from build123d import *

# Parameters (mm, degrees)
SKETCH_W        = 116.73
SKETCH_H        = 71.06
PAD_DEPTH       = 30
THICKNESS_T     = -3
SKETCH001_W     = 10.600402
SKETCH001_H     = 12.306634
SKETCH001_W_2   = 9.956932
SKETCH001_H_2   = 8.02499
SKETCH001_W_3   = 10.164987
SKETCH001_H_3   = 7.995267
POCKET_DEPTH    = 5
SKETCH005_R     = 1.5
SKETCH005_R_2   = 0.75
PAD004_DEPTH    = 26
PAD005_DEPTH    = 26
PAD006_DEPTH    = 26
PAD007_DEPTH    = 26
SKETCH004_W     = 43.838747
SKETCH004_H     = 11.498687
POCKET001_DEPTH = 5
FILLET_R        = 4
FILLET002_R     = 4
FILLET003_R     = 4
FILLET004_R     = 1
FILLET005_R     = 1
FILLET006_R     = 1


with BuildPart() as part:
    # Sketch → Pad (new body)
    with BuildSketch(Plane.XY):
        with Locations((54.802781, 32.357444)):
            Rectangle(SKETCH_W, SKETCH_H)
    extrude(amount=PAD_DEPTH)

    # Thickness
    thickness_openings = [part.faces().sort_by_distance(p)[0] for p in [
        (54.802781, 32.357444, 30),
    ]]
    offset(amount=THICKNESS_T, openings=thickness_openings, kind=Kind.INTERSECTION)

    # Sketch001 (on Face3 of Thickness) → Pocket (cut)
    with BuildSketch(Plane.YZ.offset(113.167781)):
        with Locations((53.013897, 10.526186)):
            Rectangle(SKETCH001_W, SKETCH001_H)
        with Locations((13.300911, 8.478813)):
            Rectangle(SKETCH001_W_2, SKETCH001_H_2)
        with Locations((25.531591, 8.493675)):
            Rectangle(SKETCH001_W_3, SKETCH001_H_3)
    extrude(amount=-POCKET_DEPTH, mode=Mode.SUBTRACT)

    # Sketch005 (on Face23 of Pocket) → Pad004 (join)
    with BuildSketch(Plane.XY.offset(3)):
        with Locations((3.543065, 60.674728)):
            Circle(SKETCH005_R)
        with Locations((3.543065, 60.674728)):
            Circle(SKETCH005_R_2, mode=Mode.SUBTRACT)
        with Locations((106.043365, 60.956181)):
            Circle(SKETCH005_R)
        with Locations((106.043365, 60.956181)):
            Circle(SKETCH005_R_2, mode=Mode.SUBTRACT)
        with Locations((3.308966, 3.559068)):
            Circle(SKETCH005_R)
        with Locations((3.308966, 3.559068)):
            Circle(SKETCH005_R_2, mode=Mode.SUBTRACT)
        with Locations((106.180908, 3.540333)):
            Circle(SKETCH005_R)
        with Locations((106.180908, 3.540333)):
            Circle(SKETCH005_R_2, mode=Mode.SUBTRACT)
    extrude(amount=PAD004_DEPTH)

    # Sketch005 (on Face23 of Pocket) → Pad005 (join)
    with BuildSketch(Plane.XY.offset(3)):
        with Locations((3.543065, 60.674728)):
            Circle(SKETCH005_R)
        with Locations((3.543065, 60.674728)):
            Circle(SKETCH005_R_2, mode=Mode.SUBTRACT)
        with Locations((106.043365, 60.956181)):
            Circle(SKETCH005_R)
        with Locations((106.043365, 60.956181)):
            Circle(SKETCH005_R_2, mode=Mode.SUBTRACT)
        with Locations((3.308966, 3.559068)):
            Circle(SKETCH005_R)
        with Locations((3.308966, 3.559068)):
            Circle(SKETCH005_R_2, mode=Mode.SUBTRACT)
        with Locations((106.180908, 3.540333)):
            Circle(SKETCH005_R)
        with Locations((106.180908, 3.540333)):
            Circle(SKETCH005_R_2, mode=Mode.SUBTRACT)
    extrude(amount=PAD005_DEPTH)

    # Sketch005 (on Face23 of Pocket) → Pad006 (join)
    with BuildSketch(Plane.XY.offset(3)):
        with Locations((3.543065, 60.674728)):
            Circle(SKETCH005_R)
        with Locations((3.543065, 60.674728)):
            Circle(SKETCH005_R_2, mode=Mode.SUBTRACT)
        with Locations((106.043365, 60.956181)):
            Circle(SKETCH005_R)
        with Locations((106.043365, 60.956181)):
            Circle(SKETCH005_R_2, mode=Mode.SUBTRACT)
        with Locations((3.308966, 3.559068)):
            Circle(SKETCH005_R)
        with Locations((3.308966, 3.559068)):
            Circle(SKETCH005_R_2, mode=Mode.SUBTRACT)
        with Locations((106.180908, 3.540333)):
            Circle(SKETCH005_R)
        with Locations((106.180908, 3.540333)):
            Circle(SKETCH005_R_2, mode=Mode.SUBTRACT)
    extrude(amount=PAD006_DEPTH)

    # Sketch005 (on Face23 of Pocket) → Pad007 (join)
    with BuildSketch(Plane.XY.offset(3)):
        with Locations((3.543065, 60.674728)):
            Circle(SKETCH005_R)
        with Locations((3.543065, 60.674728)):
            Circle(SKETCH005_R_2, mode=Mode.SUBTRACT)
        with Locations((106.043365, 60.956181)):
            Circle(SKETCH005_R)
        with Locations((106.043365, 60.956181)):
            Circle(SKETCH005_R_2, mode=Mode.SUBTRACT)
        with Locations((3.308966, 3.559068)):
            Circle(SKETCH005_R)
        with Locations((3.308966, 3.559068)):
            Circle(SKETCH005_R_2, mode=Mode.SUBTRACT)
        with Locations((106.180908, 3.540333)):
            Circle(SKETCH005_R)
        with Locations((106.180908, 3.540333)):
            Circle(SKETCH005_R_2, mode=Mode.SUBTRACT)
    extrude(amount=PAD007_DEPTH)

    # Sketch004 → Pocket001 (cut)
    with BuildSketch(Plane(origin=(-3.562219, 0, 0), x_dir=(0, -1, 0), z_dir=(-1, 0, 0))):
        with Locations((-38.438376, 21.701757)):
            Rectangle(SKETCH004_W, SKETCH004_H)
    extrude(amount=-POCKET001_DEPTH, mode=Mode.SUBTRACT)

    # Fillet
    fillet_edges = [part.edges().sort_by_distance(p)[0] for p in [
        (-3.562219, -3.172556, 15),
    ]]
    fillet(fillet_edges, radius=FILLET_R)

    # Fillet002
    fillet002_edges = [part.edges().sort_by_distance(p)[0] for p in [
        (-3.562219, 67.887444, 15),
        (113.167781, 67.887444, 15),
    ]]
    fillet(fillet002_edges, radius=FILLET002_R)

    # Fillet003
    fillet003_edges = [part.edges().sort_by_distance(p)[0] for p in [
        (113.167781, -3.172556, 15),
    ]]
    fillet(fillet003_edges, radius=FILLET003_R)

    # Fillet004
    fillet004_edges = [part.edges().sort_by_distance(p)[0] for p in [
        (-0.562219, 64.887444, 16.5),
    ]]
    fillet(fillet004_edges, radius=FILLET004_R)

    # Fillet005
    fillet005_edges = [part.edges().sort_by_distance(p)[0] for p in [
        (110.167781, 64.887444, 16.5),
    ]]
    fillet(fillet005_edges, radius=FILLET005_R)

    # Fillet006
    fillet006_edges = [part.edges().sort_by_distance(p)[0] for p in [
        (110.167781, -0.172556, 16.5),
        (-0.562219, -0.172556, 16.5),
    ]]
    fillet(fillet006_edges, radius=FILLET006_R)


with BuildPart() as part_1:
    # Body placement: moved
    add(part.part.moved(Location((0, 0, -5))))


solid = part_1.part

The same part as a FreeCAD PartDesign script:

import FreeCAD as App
import Part
import Sketcher
Q = App.Units.Quantity


def edges_at(feature, points):
    """Names of the edges that pass closest to the given points."""
    edges = feature.Shape.Edges
    near = lambda p: min(range(len(edges)), key=lambda i: edges[i].distToShape(Part.Vertex(*p))[0])
    return sorted({f"Edge{near(p) + 1}" for p in points})


def faces_at(feature, points):
    """Names of the faces that lie closest to the given points."""
    faces = feature.Shape.Faces
    near = lambda p: min(range(len(faces)), key=lambda i: faces[i].distToShape(Part.Vertex(*p))[0])
    return sorted({f"Face{near(p) + 1}" for p in points})

doc = App.newDocument("Part")
body = doc.addObject("PartDesign::Body", "Body")

sketch1 = body.newObject("Sketcher::SketchObject", "Sketch")
sketch1.AttachmentSupport = (doc.getObject("XY_Plane"), [""])
sketch1.MapMode = "FlatFace"
sketch1.addGeometry([
    Part.LineSegment(App.Vector(-3.562219, 67.887444, 0), App.Vector(-3.562219, -3.172556, 0)),
    Part.LineSegment(App.Vector(-3.562219, -3.172556, 0), App.Vector(113.167781, -3.172556, 0)),
    Part.LineSegment(App.Vector(113.167781, -3.172556, 0), App.Vector(113.167781, 67.887444, 0)),
    Part.LineSegment(App.Vector(113.167781, 67.887444, 0), App.Vector(-3.562219, 67.887444, 0)),
], False)
sketch1.addConstraint([
    Sketcher.Constraint("Coincident", 0, 2, 1, 1),
    Sketcher.Constraint("Coincident", 1, 2, 2, 1),
    Sketcher.Constraint("Coincident", 2, 2, 3, 1),
    Sketcher.Constraint("Coincident", 3, 2, 0, 1),
    Sketcher.Constraint("Vertical", 0),
    Sketcher.Constraint("Horizontal", 1),
    Sketcher.Constraint("Vertical", 2),
    Sketcher.Constraint("Horizontal", 3),
    Sketcher.Constraint("DistanceX", 1, 1, 1, 2, Q("116.73 mm")),
    Sketcher.Constraint("DistanceY", 0, 2, 0, 1, Q("71.06 mm")),
    Sketcher.Constraint("DistanceX", 0, 2, -1, 1, Q("3.562219 mm")),
    Sketcher.Constraint("DistanceY", 0, 2, -1, 1, Q("3.172556 mm")),
])
pad1 = body.newObject("PartDesign::Pad", "Pad")
pad1.Profile = sketch1
pad1.Length = 30
doc.recompute()

thickness = body.newObject("PartDesign::Thickness", "Thickness")
thickness.Base = (pad1, faces_at(pad1, [(54.803, 32.357, 30)]))
thickness.Value = 3
thickness.Reversed = True
thickness.Join = "Intersection"

sketch2 = body.newObject("Sketcher::SketchObject", "Sketch001")
sketch2.AttachmentSupport = (doc.getObject("YZ_Plane"), [""])
sketch2.MapMode = "FlatFace"
sketch2.AttachmentOffset = App.Placement(App.Vector(0, 0, 113.167781), App.Rotation())
sketch2.addGeometry([
    Part.LineSegment(App.Vector(47.713696, 16.679503, 0), App.Vector(47.713696, 4.372869, 0)),
    Part.LineSegment(App.Vector(47.713696, 4.372869, 0), App.Vector(58.314098, 4.372869, 0)),
    Part.LineSegment(App.Vector(58.314098, 4.372869, 0), App.Vector(58.314098, 16.679503, 0)),
    Part.LineSegment(App.Vector(58.314098, 16.679503, 0), App.Vector(47.713696, 16.679503, 0)),
    Part.LineSegment(App.Vector(8.322445, 12.491308, 0), App.Vector(8.322445, 4.466318, 0)),
    Part.LineSegment(App.Vector(8.322445, 4.466318, 0), App.Vector(18.279377, 4.466318, 0)),
    Part.LineSegment(App.Vector(18.279377, 4.466318, 0), App.Vector(18.279377, 12.491308, 0)),
    Part.LineSegment(App.Vector(18.279377, 12.491308, 0), App.Vector(8.322445, 12.491308, 0)),
    Part.LineSegment(App.Vector(20.449098, 12.491309, 0), App.Vector(20.449098, 4.496041, 0)),
    Part.LineSegment(App.Vector(20.449098, 4.496041, 0), App.Vector(30.614085, 4.496041, 0)),
    Part.LineSegment(App.Vector(30.614085, 4.496041, 0), App.Vector(30.614085, 12.491309, 0)),
    Part.LineSegment(App.Vector(30.614085, 12.491309, 0), App.Vector(20.449098, 12.491309, 0)),
], False)
sketch2.addConstraint([
    Sketcher.Constraint("Coincident", 0, 2, 1, 1),
    Sketcher.Constraint("Coincident", 1, 2, 2, 1),
    Sketcher.Constraint("Coincident", 2, 2, 3, 1),
    Sketcher.Constraint("Coincident", 3, 2, 0, 1),
    Sketcher.Constraint("Coincident", 4, 2, 5, 1),
    Sketcher.Constraint("Coincident", 5, 2, 6, 1),
    Sketcher.Constraint("Coincident", 6, 2, 7, 1),
    Sketcher.Constraint("Coincident", 7, 2, 4, 1),
    Sketcher.Constraint("Coincident", 8, 2, 9, 1),
    Sketcher.Constraint("Coincident", 9, 2, 10, 1),
    Sketcher.Constraint("Coincident", 10, 2, 11, 1),
    Sketcher.Constraint("Coincident", 11, 2, 8, 1),
    Sketcher.Constraint("Vertical", 0),
    Sketcher.Constraint("Horizontal", 1),
    Sketcher.Constraint("Vertical", 2),
    Sketcher.Constraint("Horizontal", 3),
    Sketcher.Constraint("Vertical", 4),
    Sketcher.Constraint("Horizontal", 5),
    Sketcher.Constraint("Vertical", 6),
    Sketcher.Constraint("Horizontal", 7),
    Sketcher.Constraint("Vertical", 8),
    Sketcher.Constraint("Horizontal", 9),
    Sketcher.Constraint("Vertical", 10),
    Sketcher.Constraint("Horizontal", 11),
    Sketcher.Constraint("Horizontal", 7, 2, 10, 2),
    Sketcher.Constraint("DistanceY", 4, 2, 4, 1, Q("8.02499 mm")),
    Sketcher.Constraint("DistanceX", 8, 2, 0, 2, Q("27.264598 mm")),
    Sketcher.Constraint("DistanceX", 1, 1, 1, 2, Q("10.600402 mm")),
    Sketcher.Constraint("DistanceX", 5, 1, 5, 2, Q("9.956932 mm")),
    Sketcher.Constraint("DistanceX", 9, 1, 9, 2, Q("10.164987 mm")),
    Sketcher.Constraint("DistanceY", 0, 2, 0, 1, Q("12.306634 mm")),
    Sketcher.Constraint("DistanceY", 8, 2, 8, 1, Q("7.995267 mm")),
    Sketcher.Constraint("DistanceY", -1, 1, 0, 2, Q("4.372869 mm")),
    Sketcher.Constraint("DistanceY", -1, 1, 4, 2, Q("4.466318 mm")),
    Sketcher.Constraint("DistanceX", 4, 2, 0, 2, Q("39.391251 mm")),
    Sketcher.Constraint("DistanceX", -1, 1, 0, 2, Q("47.713696 mm")),
])
pocket1 = body.newObject("PartDesign::Pocket", "Pocket")
pocket1.Profile = sketch2
pocket1.Length = 5

sketch3 = body.newObject("Sketcher::SketchObject", "Sketch002")
sketch3.AttachmentSupport = (doc.getObject("XY_Plane"), [""])
sketch3.MapMode = "FlatFace"
sketch3.AttachmentOffset = App.Placement(App.Vector(0, 0, 3), App.Rotation())
sketch3.addGeometry([
    Part.Circle(App.Vector(3.543065, 60.674728, 0), App.Vector(0, 0, 1), 1.5),
    Part.Circle(App.Vector(3.543065, 60.674728, 0), App.Vector(0, 0, 1), 0.75),
    Part.Circle(App.Vector(106.043365, 60.956181, 0), App.Vector(0, 0, 1), 1.5),
    Part.Circle(App.Vector(106.043365, 60.956181, 0), App.Vector(0, 0, 1), 0.75),
    Part.Circle(App.Vector(3.308966, 3.559068, 0), App.Vector(0, 0, 1), 1.5),
    Part.Circle(App.Vector(3.308966, 3.559068, 0), App.Vector(0, 0, 1), 0.75),
    Part.Circle(App.Vector(106.180908, 3.540333, 0), App.Vector(0, 0, 1), 1.5),
    Part.Circle(App.Vector(106.180908, 3.540333, 0), App.Vector(0, 0, 1), 0.75),
], False)
sketch3.addConstraint([
    Sketcher.Constraint("Coincident", 1, 3, 0, 3),
    Sketcher.Constraint("Coincident", 3, 3, 2, 3),
    Sketcher.Constraint("Coincident", 5, 3, 4, 3),
    Sketcher.Constraint("Coincident", 7, 3, 6, 3),
    Sketcher.Constraint("Equal", 0, 2),
    Sketcher.Constraint("Equal", 1, 3),
    Sketcher.Constraint("Equal", 2, 4),
    Sketcher.Constraint("Equal", 3, 5),
    Sketcher.Constraint("Equal", 4, 6),
    Sketcher.Constraint("Equal", 5, 7),
    Sketcher.Constraint("Diameter", 0, Q("3 mm")),
    Sketcher.Constraint("Diameter", 1, Q("1.5 mm")),
    Sketcher.Constraint("DistanceX", 0, 3, 2, 3, Q("102.5003 mm")),
    Sketcher.Constraint("DistanceX", 4, 3, 0, 3, Q("0.234099 mm")),
    Sketcher.Constraint("DistanceY", -1, 1, 0, 3, Q("60.674728 mm")),
    Sketcher.Constraint("DistanceY", -1, 1, 2, 3, Q("60.956181 mm")),
    Sketcher.Constraint("DistanceX", -1, 1, 6, 3, Q("106.180908 mm")),
    Sketcher.Constraint("DistanceY", 4, 3, 0, 3, Q("57.11566 mm")),
    Sketcher.Constraint("DistanceY", 6, 3, 2, 3, Q("57.415848 mm")),
    Sketcher.Constraint("DistanceX", -1, 1, 0, 3, Q("3.543065 mm")),
])
pad2 = body.newObject("PartDesign::Pad", "Pad001")
pad2.Profile = sketch3
pad2.Length = 26

sketch4 = body.newObject("Sketcher::SketchObject", "Sketch003")
sketch4.AttachmentSupport = (doc.getObject("XY_Plane"), [""])
sketch4.MapMode = "FlatFace"
sketch4.AttachmentOffset = App.Placement(App.Vector(0, 0, 3), App.Rotation())
sketch4.addGeometry([
    Part.Circle(App.Vector(3.543065, 60.674728, 0), App.Vector(0, 0, 1), 1.5),
    Part.Circle(App.Vector(3.543065, 60.674728, 0), App.Vector(0, 0, 1), 0.75),
    Part.Circle(App.Vector(106.043365, 60.956181, 0), App.Vector(0, 0, 1), 1.5),
    Part.Circle(App.Vector(106.043365, 60.956181, 0), App.Vector(0, 0, 1), 0.75),
    Part.Circle(App.Vector(3.308966, 3.559068, 0), App.Vector(0, 0, 1), 1.5),
    Part.Circle(App.Vector(3.308966, 3.559068, 0), App.Vector(0, 0, 1), 0.75),
    Part.Circle(App.Vector(106.180908, 3.540333, 0), App.Vector(0, 0, 1), 1.5),
    Part.Circle(App.Vector(106.180908, 3.540333, 0), App.Vector(0, 0, 1), 0.75),
], False)
sketch4.addConstraint([
    Sketcher.Constraint("Coincident", 1, 3, 0, 3),
    Sketcher.Constraint("Coincident", 3, 3, 2, 3),
    Sketcher.Constraint("Coincident", 5, 3, 4, 3),
    Sketcher.Constraint("Coincident", 7, 3, 6, 3),
    Sketcher.Constraint("Equal", 0, 2),
    Sketcher.Constraint("Equal", 1, 3),
    Sketcher.Constraint("Equal", 2, 4),
    Sketcher.Constraint("Equal", 3, 5),
    Sketcher.Constraint("Equal", 4, 6),
    Sketcher.Constraint("Equal", 5, 7),
    Sketcher.Constraint("Diameter", 0, Q("3 mm")),
    Sketcher.Constraint("Diameter", 1, Q("1.5 mm")),
    Sketcher.Constraint("DistanceX", 0, 3, 2, 3, Q("102.5003 mm")),
    Sketcher.Constraint("DistanceX", 4, 3, 0, 3, Q("0.234099 mm")),
    Sketcher.Constraint("DistanceY", -1, 1, 0, 3, Q("60.674728 mm")),
    Sketcher.Constraint("DistanceY", -1, 1, 2, 3, Q("60.956181 mm")),
    Sketcher.Constraint("DistanceX", -1, 1, 6, 3, Q("106.180908 mm")),
    Sketcher.Constraint("DistanceY", 4, 3, 0, 3, Q("57.11566 mm")),
    Sketcher.Constraint("DistanceY", 6, 3, 2, 3, Q("57.415848 mm")),
    Sketcher.Constraint("DistanceX", -1, 1, 0, 3, Q("3.543065 mm")),
])
pad3 = body.newObject("PartDesign::Pad", "Pad002")
pad3.Profile = sketch4
pad3.Length = 26

sketch5 = body.newObject("Sketcher::SketchObject", "Sketch004")
sketch5.AttachmentSupport = (doc.getObject("XY_Plane"), [""])
sketch5.MapMode = "FlatFace"
sketch5.AttachmentOffset = App.Placement(App.Vector(0, 0, 3), App.Rotation())
sketch5.addGeometry([
    Part.Circle(App.Vector(3.543065, 60.674728, 0), App.Vector(0, 0, 1), 1.5),
    Part.Circle(App.Vector(3.543065, 60.674728, 0), App.Vector(0, 0, 1), 0.75),
    Part.Circle(App.Vector(106.043365, 60.956181, 0), App.Vector(0, 0, 1), 1.5),
    Part.Circle(App.Vector(106.043365, 60.956181, 0), App.Vector(0, 0, 1), 0.75),
    Part.Circle(App.Vector(3.308966, 3.559068, 0), App.Vector(0, 0, 1), 1.5),
    Part.Circle(App.Vector(3.308966, 3.559068, 0), App.Vector(0, 0, 1), 0.75),
    Part.Circle(App.Vector(106.180908, 3.540333, 0), App.Vector(0, 0, 1), 1.5),
    Part.Circle(App.Vector(106.180908, 3.540333, 0), App.Vector(0, 0, 1), 0.75),
], False)
sketch5.addConstraint([
    Sketcher.Constraint("Coincident", 1, 3, 0, 3),
    Sketcher.Constraint("Coincident", 3, 3, 2, 3),
    Sketcher.Constraint("Coincident", 5, 3, 4, 3),
    Sketcher.Constraint("Coincident", 7, 3, 6, 3),
    Sketcher.Constraint("Equal", 0, 2),
    Sketcher.Constraint("Equal", 1, 3),
    Sketcher.Constraint("Equal", 2, 4),
    Sketcher.Constraint("Equal", 3, 5),
    Sketcher.Constraint("Equal", 4, 6),
    Sketcher.Constraint("Equal", 5, 7),
    Sketcher.Constraint("Diameter", 0, Q("3 mm")),
    Sketcher.Constraint("Diameter", 1, Q("1.5 mm")),
    Sketcher.Constraint("DistanceX", 0, 3, 2, 3, Q("102.5003 mm")),
    Sketcher.Constraint("DistanceX", 4, 3, 0, 3, Q("0.234099 mm")),
    Sketcher.Constraint("DistanceY", -1, 1, 0, 3, Q("60.674728 mm")),
    Sketcher.Constraint("DistanceY", -1, 1, 2, 3, Q("60.956181 mm")),
    Sketcher.Constraint("DistanceX", -1, 1, 6, 3, Q("106.180908 mm")),
    Sketcher.Constraint("DistanceY", 4, 3, 0, 3, Q("57.11566 mm")),
    Sketcher.Constraint("DistanceY", 6, 3, 2, 3, Q("57.415848 mm")),
    Sketcher.Constraint("DistanceX", -1, 1, 0, 3, Q("3.543065 mm")),
])
pad4 = body.newObject("PartDesign::Pad", "Pad003")
pad4.Profile = sketch5
pad4.Length = 26

sketch6 = body.newObject("Sketcher::SketchObject", "Sketch005")
sketch6.AttachmentSupport = (doc.getObject("XY_Plane"), [""])
sketch6.MapMode = "FlatFace"
sketch6.AttachmentOffset = App.Placement(App.Vector(0, 0, 3), App.Rotation())
sketch6.addGeometry([
    Part.Circle(App.Vector(3.543065, 60.674728, 0), App.Vector(0, 0, 1), 1.5),
    Part.Circle(App.Vector(3.543065, 60.674728, 0), App.Vector(0, 0, 1), 0.75),
    Part.Circle(App.Vector(106.043365, 60.956181, 0), App.Vector(0, 0, 1), 1.5),
    Part.Circle(App.Vector(106.043365, 60.956181, 0), App.Vector(0, 0, 1), 0.75),
    Part.Circle(App.Vector(3.308966, 3.559068, 0), App.Vector(0, 0, 1), 1.5),
    Part.Circle(App.Vector(3.308966, 3.559068, 0), App.Vector(0, 0, 1), 0.75),
    Part.Circle(App.Vector(106.180908, 3.540333, 0), App.Vector(0, 0, 1), 1.5),
    Part.Circle(App.Vector(106.180908, 3.540333, 0), App.Vector(0, 0, 1), 0.75),
], False)
sketch6.addConstraint([
    Sketcher.Constraint("Coincident", 1, 3, 0, 3),
    Sketcher.Constraint("Coincident", 3, 3, 2, 3),
    Sketcher.Constraint("Coincident", 5, 3, 4, 3),
    Sketcher.Constraint("Coincident", 7, 3, 6, 3),
    Sketcher.Constraint("Equal", 0, 2),
    Sketcher.Constraint("Equal", 1, 3),
    Sketcher.Constraint("Equal", 2, 4),
    Sketcher.Constraint("Equal", 3, 5),
    Sketcher.Constraint("Equal", 4, 6),
    Sketcher.Constraint("Equal", 5, 7),
    Sketcher.Constraint("Diameter", 0, Q("3 mm")),
    Sketcher.Constraint("Diameter", 1, Q("1.5 mm")),
    Sketcher.Constraint("DistanceX", 0, 3, 2, 3, Q("102.5003 mm")),
    Sketcher.Constraint("DistanceX", 4, 3, 0, 3, Q("0.234099 mm")),
    Sketcher.Constraint("DistanceY", -1, 1, 0, 3, Q("60.674728 mm")),
    Sketcher.Constraint("DistanceY", -1, 1, 2, 3, Q("60.956181 mm")),
    Sketcher.Constraint("DistanceX", -1, 1, 6, 3, Q("106.180908 mm")),
    Sketcher.Constraint("DistanceY", 4, 3, 0, 3, Q("57.11566 mm")),
    Sketcher.Constraint("DistanceY", 6, 3, 2, 3, Q("57.415848 mm")),
    Sketcher.Constraint("DistanceX", -1, 1, 0, 3, Q("3.543065 mm")),
])
pad5 = body.newObject("PartDesign::Pad", "Pad004")
pad5.Profile = sketch6
pad5.Length = 26

sketch7 = body.newObject("Sketcher::SketchObject", "Sketch006")
sketch7.AttachmentSupport = (doc.getObject("YZ_Plane"), [""])
sketch7.MapMode = "FlatFace"
sketch7.AttachmentOffset = App.Placement(App.Vector(0, 0, -3.562219), App.Rotation())
sketch7.addGeometry([
    Part.LineSegment(App.Vector(60.357749, 27.4511, 0), App.Vector(60.357749, 15.952414, 0)),
    Part.LineSegment(App.Vector(60.357749, 15.952414, 0), App.Vector(16.519002, 15.952414, 0)),
    Part.LineSegment(App.Vector(16.519002, 15.952414, 0), App.Vector(16.519002, 27.4511, 0)),
    Part.LineSegment(App.Vector(16.519002, 27.4511, 0), App.Vector(60.357749, 27.4511, 0)),
], False)
sketch7.addConstraint([
    Sketcher.Constraint("Coincident", 0, 2, 1, 1),
    Sketcher.Constraint("Coincident", 1, 2, 2, 1),
    Sketcher.Constraint("Coincident", 2, 2, 3, 1),
    Sketcher.Constraint("Coincident", 3, 2, 0, 1),
    Sketcher.Constraint("Vertical", 0),
    Sketcher.Constraint("Horizontal", 1),
    Sketcher.Constraint("Vertical", 2),
    Sketcher.Constraint("Horizontal", 3),
    Sketcher.Constraint("DistanceY", -1, 1, 2, 2, Q("27.4511 mm")),
    Sketcher.Constraint("DistanceX", 1, 2, 1, 1, Q("43.838747 mm")),
    Sketcher.Constraint("DistanceY", 0, 2, 0, 1, Q("11.498687 mm")),
    Sketcher.Constraint("DistanceX", -1, 1, 0, 2, Q("60.357749 mm")),
])
pocket2 = body.newObject("PartDesign::Pocket", "Pocket001")
pocket2.Profile = sketch7
pocket2.Length = 5
pocket2.Reversed = True
doc.recompute()

fillet = body.newObject("PartDesign::Fillet", "Fillet")
fillet.Base = (pocket2, edges_at(pocket2, [(-3.562, -3.173, 15)]))
fillet.Radius = 4
doc.recompute()

fillet2 = body.newObject("PartDesign::Fillet", "Fillet001")
fillet2.Base = (fillet, edges_at(fillet, [(-3.562, 67.887, 15), (113.168, 67.887, 15)]))
fillet2.Radius = 4
doc.recompute()

fillet3 = body.newObject("PartDesign::Fillet", "Fillet002")
fillet3.Base = (fillet2, edges_at(fillet2, [(113.168, -3.173, 15)]))
fillet3.Radius = 4
doc.recompute()

fillet4 = body.newObject("PartDesign::Fillet", "Fillet003")
fillet4.Base = (fillet3, edges_at(fillet3, [(-0.562, 64.887, 16.5)]))
fillet4.Radius = 1
doc.recompute()

fillet5 = body.newObject("PartDesign::Fillet", "Fillet004")
fillet5.Base = (fillet4, edges_at(fillet4, [(110.168, 64.887, 16.5)]))
fillet5.Radius = 1
doc.recompute()

fillet6 = body.newObject("PartDesign::Fillet", "Fillet005")
fillet6.Base = (fillet5, edges_at(fillet5, [(110.168, -0.173, 16.5), (-0.562, -0.173, 16.5)]))
fillet6.Radius = 1
body2 = doc.addObject("PartDesign::Body", "Body001")
doc.recompute()

body.Placement = App.Placement(App.Vector(0, 0, -5), App.Rotation(App.Vector(0, 0, 1), 0))
boolean = body2.newObject("PartDesign::Boolean", "Boolean")
boolean.Type = "Fuse"
boolean.addObjects([body])

doc.recompute()
